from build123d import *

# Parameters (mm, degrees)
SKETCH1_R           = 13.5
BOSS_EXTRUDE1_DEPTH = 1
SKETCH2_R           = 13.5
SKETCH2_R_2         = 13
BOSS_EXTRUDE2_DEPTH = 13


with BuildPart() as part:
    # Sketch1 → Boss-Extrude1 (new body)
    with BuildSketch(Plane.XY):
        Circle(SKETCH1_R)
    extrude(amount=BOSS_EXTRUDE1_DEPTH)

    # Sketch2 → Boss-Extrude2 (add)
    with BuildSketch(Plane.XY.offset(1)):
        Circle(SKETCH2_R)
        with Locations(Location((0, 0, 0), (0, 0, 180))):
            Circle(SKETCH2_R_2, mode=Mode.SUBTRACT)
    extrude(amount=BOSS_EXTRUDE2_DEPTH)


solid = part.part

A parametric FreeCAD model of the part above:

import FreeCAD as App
import Part
import Sketcher
from FreeCAD import Vector
Q = App.Units.Quantity

doc = App.newDocument("Part")
body = doc.addObject("PartDesign::Body", "Body")

sketch1 = doc.addObject("Sketcher::SketchObject", "Sketch")
body.addObject(sketch1)
sketch1.AttachmentSupport = (doc.XY_Plane, [""])
sketch1.MapMode = "FlatFace"
sketch1.addGeometry(Part.Circle(Vector(0, 0, 0), Vector(0, 0, 1), 14), False)
sketch1.addConstraint(Sketcher.Constraint("Coincident", 0, 3, -1, 1))
sketch1.addConstraint(Sketcher.Constraint("Diameter", 0, Q("27 mm")))
pad1 = doc.addObject("PartDesign::Pad", "Pad")
body.addObject(pad1)
pad1.Profile = sketch1
pad1.Length = 1

sketch2 = doc.addObject("Sketcher::SketchObject", "Sketch001")
body.addObject(sketch2)
sketch2.AttachmentSupport = (doc.XY_Plane, [""])
sketch2.MapMode = "FlatFace"
sketch2.AttachmentOffset = App.Placement(Vector(0, 0, 1), App.Rotation())
sketch2.addGeometry(Part.Circle(Vector(0, 0, 0), Vector(0, 0, 1), 14), False)
sketch2.addGeometry(Part.Circle(Vector(0, 0, 0), Vector(0, 0, 1), 13), False)
sketch2.addConstraint(Sketcher.Constraint("Coincident", 0, 3, -1, 1))
sketch2.addConstraint(Sketcher.Constraint("Coincident", 1, 3, -1, 1))
sketch2.addConstraint(Sketcher.Constraint("Diameter", 0, Q("27 mm")))
sketch2.addConstraint(Sketcher.Constraint("Diameter", 1, Q("26 mm")))
pad2 = doc.addObject("PartDesign::Pad", "Pad001")
body.addObject(pad2)
pad2.Profile = sketch2
pad2.Length = 13

doc.recompute()
